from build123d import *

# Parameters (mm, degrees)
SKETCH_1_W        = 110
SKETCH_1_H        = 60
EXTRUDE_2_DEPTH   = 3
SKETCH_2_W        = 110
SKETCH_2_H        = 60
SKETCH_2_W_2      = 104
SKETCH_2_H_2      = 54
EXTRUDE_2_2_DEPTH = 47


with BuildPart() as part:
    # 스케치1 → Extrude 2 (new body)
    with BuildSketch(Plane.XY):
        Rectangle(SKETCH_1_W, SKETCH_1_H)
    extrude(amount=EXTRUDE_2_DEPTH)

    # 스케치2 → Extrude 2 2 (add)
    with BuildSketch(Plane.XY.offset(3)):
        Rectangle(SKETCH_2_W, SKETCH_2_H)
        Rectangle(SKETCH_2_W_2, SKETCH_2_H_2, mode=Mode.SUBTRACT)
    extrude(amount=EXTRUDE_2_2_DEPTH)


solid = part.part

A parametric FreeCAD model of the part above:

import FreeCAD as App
import Part
import Sketcher
from FreeCAD import Vector
Q = App.Units.Quantity


def add_polygon(sketch, points):
    """Adds a closed chain of lines whose ends are joined by coincident constraints."""
    first, n = sketch.GeometryCount, len(points)
    for a, b in zip(points, points[1:] + points[:1]):
        sketch.addGeometry(Part.LineSegment(App.Vector(*a, 0), App.Vector(*b, 0)), False)
    for i in range(n):
        sketch.addConstraint(Sketcher.Constraint("Coincident", first + i, 2, first + (i + 1) % n, 1))

doc = App.newDocument("Part")
body = doc.addObject("PartDesign::Body", "Body")

sketch1 = doc.addObject("Sketcher::SketchObject", "Sketch")
body.addObject(sketch1)
sketch1.AttachmentSupport = (doc.XY_Plane, [""])
sketch1.MapMode = "FlatFace"
add_polygon(sketch1, [(-55, 30), (-55, -30), (55, -30), (55, 30)])
sketch1.addConstraint([
    Sketcher.Constraint("Vertical", 0),
    Sketcher.Constraint("Horizontal", 1),
    Sketcher.Constraint("Vertical", 2),
    Sketcher.Constraint("Horizontal", 3),
    Sketcher.Constraint("Symmetric", 0, 2, 2, 2, -1, 1),
    Sketcher.Constraint("DistanceX", 1, 1, 1, 2, Q("110 mm")),
    Sketcher.Constraint("DistanceY", 0, 2, 0, 1, Q("60 mm")),
])
pad1 = doc.addObject("PartDesign::Pad", "Pad")
body.addObject(pad1)
pad1.Profile = sketch1
pad1.Length = 3

sketch2 = doc.addObject("Sketcher::SketchObject", "Sketch001")
body.addObject(sketch2)
sketch2.AttachmentSupport = (doc.XY_Plane, [""])
sketch2.MapMode = "FlatFace"
sketch2.AttachmentOffset = App.Placement(Vector(0, 0, 3), App.Rotation())
add_polygon(sketch2, [(-55, 30), (-55, -30), (55, -30), (55, 30)])
add_polygon(sketch2, [(52, -27), (-52, -27), (-52, 27), (52, 27)])
sketch2.addConstraint([
    Sketcher.Constraint("Vertical", 0),
    Sketcher.Constraint("Horizontal", 1),
    Sketcher.Constraint("Vertical", 2),
    Sketcher.Constraint("Horizontal", 3),
    Sketcher.Constraint("Horizontal", 4),
    Sketcher.Constraint("Vertical", 5),
    Sketcher.Constraint("Horizontal", 6),
    Sketcher.Constraint("Vertical", 7),
    Sketcher.Constraint("Symmetric", 0, 2, 2, 2, -1, 1),
    Sketcher.Constraint("Symmetric", 4, 2, 6, 2, -1, 1),
    Sketcher.Constraint("DistanceX", 1, 1, 1, 2, Q("110 mm")),
    Sketcher.Constraint("DistanceX", 4, 2, 4, 1, Q("104 mm")),
    Sketcher.Constraint("DistanceY", 0, 2, 0, 1, Q("60 mm")),
    Sketcher.Constraint("DistanceY", 5, 1, 5, 2, Q("54 mm")),
])
pad2 = doc.addObject("PartDesign::Pad", "Pad001")
body.addObject(pad2)
pad2.Profile = sketch2
pad2.Length = 47

doc.recompute()
